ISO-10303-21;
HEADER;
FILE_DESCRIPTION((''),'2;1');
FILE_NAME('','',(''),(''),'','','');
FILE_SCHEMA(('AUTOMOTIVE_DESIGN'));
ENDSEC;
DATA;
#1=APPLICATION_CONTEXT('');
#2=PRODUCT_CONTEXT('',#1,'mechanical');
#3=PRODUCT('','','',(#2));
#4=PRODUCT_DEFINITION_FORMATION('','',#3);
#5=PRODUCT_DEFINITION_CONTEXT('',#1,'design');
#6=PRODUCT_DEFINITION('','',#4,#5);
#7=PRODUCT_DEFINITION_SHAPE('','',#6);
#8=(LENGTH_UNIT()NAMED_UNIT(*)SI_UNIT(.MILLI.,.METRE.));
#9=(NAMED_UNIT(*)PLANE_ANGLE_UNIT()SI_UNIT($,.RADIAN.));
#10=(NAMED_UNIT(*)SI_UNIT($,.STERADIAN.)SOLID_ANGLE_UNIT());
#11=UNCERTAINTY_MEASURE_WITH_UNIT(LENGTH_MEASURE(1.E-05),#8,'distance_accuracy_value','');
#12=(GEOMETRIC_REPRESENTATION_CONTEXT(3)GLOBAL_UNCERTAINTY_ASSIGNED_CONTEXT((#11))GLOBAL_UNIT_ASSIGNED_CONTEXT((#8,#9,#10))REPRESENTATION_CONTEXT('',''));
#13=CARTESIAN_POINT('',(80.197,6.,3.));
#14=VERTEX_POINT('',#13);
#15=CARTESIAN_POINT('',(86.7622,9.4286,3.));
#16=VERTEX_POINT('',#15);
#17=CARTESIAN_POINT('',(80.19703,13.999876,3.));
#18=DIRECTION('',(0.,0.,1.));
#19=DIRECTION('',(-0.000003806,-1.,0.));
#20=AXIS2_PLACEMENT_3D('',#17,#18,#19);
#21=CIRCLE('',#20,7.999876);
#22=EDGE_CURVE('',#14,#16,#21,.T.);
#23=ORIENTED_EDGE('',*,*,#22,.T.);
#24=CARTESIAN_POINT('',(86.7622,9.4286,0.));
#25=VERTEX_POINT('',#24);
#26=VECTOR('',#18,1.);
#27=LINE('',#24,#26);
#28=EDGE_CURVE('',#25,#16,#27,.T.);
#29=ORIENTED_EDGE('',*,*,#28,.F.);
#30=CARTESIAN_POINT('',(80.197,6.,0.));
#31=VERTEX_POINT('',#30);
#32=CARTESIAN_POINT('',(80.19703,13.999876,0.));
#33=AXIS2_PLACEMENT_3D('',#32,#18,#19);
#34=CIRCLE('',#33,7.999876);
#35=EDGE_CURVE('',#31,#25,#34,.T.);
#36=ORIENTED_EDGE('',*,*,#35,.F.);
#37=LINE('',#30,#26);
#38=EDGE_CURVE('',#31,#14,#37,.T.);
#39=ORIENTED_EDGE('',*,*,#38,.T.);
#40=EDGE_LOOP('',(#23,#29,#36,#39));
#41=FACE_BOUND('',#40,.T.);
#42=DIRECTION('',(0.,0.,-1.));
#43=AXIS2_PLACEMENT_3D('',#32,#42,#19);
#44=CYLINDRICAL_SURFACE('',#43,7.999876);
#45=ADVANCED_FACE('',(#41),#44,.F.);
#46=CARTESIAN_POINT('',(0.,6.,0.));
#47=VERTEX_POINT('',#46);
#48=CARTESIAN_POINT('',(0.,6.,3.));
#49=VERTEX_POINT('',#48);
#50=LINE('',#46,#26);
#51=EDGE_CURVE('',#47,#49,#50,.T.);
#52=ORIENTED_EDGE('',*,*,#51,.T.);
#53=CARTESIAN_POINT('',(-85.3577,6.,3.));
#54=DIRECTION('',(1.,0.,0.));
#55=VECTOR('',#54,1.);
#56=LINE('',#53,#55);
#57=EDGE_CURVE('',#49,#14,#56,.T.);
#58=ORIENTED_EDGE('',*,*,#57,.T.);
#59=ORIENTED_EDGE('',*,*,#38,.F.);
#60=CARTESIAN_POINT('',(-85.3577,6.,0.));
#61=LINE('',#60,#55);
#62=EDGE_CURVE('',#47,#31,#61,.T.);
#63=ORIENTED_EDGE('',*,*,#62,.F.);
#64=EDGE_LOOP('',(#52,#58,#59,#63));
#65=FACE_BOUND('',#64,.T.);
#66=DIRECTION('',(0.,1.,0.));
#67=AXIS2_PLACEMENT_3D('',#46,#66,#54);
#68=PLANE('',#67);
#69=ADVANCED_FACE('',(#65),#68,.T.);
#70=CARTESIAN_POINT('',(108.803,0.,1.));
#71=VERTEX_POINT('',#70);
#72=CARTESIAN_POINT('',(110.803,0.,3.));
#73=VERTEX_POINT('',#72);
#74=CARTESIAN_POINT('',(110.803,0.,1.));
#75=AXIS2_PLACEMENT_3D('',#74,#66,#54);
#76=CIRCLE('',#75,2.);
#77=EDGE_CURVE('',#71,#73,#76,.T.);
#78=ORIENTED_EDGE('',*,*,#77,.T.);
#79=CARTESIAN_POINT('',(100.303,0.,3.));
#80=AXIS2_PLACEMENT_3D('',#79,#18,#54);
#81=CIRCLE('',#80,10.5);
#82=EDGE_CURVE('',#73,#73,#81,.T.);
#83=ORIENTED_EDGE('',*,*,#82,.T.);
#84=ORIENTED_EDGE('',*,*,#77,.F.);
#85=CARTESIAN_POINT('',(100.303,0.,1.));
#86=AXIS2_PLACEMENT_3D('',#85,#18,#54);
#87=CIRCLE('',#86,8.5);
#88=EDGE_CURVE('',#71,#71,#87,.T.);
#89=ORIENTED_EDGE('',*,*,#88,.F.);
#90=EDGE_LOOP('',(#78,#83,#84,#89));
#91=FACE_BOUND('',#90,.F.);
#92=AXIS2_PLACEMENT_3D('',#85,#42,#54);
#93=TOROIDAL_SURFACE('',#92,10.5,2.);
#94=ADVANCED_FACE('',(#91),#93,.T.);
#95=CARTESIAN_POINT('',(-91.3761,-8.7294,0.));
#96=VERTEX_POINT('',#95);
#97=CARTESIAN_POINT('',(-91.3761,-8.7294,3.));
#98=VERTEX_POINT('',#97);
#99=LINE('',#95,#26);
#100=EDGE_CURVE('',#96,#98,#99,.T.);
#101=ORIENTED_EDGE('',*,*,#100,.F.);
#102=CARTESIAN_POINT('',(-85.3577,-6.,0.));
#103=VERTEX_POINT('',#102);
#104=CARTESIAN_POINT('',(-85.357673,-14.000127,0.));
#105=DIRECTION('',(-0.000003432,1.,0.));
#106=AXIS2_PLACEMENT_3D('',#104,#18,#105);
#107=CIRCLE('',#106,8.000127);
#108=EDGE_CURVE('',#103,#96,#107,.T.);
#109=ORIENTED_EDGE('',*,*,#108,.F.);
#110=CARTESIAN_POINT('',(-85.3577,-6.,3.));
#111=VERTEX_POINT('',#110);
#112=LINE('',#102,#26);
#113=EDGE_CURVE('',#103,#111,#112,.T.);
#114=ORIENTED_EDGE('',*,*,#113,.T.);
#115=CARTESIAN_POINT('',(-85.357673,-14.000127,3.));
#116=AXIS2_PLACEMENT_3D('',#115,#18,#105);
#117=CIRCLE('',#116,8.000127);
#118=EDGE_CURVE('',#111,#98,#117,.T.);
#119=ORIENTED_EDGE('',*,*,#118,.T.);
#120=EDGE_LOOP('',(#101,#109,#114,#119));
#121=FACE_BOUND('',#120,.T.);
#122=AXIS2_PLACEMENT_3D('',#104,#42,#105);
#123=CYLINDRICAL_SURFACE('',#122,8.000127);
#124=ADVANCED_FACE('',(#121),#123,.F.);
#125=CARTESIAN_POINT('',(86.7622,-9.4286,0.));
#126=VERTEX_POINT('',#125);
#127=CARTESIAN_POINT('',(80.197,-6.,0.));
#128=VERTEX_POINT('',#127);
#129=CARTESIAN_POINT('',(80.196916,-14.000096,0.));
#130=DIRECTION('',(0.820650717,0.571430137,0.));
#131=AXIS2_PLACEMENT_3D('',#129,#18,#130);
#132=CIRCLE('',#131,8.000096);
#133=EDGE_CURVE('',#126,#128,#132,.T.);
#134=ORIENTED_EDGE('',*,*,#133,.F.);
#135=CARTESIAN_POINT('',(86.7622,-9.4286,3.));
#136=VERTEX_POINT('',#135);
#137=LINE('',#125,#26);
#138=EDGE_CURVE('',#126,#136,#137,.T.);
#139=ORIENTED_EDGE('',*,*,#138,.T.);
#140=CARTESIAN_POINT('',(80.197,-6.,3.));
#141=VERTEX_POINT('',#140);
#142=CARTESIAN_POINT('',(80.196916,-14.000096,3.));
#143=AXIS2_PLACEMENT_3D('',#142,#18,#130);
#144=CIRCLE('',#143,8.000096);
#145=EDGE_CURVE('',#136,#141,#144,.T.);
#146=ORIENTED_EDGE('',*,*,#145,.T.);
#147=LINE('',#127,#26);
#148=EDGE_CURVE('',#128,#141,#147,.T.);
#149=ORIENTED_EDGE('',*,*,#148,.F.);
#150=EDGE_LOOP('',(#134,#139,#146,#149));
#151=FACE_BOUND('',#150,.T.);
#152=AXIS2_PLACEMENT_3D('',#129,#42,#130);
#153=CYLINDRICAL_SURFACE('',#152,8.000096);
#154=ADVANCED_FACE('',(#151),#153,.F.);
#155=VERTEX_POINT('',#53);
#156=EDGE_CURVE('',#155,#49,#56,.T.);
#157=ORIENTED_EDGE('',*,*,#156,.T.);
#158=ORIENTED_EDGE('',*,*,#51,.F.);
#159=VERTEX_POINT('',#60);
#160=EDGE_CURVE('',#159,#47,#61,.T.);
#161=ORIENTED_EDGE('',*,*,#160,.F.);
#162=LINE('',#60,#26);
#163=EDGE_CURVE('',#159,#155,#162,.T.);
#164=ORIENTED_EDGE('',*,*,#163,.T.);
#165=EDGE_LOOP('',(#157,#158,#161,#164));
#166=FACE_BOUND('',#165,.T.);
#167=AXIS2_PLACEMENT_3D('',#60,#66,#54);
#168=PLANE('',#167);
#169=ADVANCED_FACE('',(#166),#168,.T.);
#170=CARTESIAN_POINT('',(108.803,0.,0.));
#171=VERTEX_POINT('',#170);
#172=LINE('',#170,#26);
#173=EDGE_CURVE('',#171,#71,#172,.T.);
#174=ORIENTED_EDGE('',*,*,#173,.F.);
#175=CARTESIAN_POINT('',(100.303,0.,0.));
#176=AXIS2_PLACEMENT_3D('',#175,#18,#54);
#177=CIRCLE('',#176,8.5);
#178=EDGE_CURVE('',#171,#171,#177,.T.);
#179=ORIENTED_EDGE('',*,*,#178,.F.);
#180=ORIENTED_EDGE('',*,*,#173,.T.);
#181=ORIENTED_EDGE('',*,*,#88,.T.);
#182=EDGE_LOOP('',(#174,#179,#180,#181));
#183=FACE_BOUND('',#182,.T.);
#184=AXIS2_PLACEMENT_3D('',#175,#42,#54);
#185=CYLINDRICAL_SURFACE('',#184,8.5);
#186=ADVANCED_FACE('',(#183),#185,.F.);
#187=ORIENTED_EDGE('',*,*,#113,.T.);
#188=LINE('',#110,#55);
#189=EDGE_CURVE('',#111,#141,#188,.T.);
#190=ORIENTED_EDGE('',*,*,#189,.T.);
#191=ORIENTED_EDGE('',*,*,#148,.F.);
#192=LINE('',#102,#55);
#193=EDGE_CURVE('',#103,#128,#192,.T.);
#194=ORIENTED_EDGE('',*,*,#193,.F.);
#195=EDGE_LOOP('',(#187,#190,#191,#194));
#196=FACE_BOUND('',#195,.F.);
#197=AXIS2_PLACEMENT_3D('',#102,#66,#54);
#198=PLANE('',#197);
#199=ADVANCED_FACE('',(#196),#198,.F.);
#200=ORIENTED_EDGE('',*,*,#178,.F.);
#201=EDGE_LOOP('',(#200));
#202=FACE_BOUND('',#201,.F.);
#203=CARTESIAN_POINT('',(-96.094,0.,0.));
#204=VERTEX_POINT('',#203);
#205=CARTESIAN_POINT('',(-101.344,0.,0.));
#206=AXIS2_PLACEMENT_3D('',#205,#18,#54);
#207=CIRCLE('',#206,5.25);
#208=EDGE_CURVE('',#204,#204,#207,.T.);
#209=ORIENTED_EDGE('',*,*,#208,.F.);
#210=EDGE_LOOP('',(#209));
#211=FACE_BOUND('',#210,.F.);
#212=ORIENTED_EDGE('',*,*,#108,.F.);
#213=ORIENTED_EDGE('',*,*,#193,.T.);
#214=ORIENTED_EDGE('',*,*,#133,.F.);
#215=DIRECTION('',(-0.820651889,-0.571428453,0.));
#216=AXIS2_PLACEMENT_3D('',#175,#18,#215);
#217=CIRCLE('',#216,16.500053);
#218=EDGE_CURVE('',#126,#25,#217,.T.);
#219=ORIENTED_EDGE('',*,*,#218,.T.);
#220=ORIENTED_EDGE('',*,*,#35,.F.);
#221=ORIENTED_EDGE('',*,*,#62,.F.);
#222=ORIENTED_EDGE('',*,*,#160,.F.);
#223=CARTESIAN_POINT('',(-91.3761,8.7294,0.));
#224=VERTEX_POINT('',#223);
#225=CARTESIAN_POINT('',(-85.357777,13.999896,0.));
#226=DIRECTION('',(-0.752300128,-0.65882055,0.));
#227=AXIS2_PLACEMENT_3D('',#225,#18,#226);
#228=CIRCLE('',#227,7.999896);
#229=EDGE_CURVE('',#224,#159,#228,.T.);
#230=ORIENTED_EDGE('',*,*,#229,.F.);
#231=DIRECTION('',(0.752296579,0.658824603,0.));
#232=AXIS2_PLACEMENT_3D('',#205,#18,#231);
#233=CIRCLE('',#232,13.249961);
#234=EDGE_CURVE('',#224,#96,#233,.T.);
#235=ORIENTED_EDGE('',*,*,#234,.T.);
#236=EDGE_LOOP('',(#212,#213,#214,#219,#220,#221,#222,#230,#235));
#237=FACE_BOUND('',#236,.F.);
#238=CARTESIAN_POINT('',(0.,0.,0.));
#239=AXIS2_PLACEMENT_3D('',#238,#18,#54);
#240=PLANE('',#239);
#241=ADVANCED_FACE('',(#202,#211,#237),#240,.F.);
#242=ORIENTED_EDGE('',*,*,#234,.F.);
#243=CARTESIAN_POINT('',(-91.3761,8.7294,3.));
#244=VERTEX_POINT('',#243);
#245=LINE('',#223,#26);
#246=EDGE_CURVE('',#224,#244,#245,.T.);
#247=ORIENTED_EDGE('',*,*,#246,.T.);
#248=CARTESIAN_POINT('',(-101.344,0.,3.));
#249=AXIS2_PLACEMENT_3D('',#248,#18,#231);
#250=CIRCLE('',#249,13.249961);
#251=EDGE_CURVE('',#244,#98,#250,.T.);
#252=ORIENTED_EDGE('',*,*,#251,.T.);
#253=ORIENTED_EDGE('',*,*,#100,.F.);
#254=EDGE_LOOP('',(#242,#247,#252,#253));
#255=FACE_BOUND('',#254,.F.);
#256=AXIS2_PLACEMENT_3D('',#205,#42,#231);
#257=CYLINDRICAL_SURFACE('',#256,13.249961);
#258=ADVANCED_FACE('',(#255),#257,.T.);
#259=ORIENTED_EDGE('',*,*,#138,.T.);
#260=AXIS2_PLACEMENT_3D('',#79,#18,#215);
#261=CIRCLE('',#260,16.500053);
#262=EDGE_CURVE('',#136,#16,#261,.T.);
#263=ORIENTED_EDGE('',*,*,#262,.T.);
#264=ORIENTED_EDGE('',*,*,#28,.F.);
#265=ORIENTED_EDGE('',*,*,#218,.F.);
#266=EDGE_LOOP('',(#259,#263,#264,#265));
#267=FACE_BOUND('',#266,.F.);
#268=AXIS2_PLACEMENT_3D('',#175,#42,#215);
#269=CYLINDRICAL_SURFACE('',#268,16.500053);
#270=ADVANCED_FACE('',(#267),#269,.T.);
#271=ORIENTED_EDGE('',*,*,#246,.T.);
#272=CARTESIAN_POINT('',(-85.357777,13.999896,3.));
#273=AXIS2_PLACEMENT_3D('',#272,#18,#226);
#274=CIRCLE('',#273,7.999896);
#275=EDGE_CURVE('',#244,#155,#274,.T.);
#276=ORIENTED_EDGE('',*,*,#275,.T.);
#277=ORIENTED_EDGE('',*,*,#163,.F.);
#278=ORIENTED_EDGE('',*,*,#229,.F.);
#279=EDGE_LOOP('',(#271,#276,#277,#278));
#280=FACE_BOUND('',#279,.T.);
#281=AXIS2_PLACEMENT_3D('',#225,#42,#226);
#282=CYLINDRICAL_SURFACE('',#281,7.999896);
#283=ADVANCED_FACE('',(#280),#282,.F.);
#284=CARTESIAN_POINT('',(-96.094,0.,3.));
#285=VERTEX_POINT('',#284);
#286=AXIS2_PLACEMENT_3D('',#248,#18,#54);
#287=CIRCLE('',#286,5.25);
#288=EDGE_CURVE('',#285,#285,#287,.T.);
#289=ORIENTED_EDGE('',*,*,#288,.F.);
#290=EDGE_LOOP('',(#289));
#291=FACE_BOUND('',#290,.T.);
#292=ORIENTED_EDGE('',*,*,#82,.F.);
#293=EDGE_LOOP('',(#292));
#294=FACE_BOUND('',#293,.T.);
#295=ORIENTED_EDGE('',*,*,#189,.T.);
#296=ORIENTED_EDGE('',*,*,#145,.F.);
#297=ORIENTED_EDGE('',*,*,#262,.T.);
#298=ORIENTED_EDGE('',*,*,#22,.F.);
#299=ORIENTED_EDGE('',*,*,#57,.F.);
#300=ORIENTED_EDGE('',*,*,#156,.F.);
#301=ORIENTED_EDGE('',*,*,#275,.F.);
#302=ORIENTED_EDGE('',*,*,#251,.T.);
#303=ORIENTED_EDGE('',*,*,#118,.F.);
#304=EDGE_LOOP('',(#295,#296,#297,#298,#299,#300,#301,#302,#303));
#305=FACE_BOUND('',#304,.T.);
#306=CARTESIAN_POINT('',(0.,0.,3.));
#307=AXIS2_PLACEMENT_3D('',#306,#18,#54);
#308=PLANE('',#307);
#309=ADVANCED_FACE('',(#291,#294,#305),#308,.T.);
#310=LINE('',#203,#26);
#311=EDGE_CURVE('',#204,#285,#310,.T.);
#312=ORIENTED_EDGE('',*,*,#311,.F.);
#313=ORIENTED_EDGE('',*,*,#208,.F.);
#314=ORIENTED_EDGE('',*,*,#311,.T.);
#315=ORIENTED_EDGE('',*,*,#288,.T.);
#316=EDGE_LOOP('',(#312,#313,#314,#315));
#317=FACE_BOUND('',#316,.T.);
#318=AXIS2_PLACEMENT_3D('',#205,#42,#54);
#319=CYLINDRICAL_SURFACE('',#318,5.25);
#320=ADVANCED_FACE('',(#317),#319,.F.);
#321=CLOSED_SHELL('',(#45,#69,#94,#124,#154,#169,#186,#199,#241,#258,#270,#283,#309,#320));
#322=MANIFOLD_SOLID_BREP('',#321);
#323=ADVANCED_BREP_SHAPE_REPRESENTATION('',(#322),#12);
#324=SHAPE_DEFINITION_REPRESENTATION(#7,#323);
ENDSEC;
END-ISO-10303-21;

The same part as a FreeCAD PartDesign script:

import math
import FreeCAD as App
import Part
import Sketcher
Q = App.Units.Quantity


def edges_at(feature, points):
    """Names of the edges that pass closest to the given points."""
    edges = feature.Shape.Edges
    near = lambda p: min(range(len(edges)), key=lambda i: edges[i].distToShape(Part.Vertex(*p))[0])
    return sorted({f"Edge{near(p) + 1}" for p in points})

doc = App.newDocument("Part")
params = doc.addObject("Spreadsheet::Sheet", "Params")
for row, (alias, value) in enumerate([
    ("sketch1_diameter", "17 mm"),
    ("sketch1_radius", "8 mm"),
    ("sketch1_diameter2", "10.5 mm"),
    ("sketch1_radius2", "16.5 mm"),
    ("sketch1_radius3", "13.25 mm"),
    ("pad1_length", "3 mm"),
    ("fillet_radius", "2 mm"),
], start=1):
    params.set(f"A{row}", alias)
    params.set(f"B{row}", "=" + value)
    params.setAlias(f"B{row}", alias)

body = doc.addObject("PartDesign::Body", "Body")

# Sketch on XY plane
sketch1 = body.newObject("Sketcher::SketchObject", "Sketch")
sketch1.AttachmentSupport = (doc.getObject("XY_Plane"), [""])
sketch1.MapMode = "FlatFace"
sketch1.addGeometry(Part.ArcOfCircle(Part.Circle(App.Vector(-85, 14, 0), App.Vector(0, 0, 1), 8), math.radians(-139), math.radians(-90)), False)
sketch1.addGeometry(Part.ArcOfCircle(Part.Circle(App.Vector(-101, 0, 0), App.Vector(0, 0, 1), 13), math.radians(41), math.radians(319)), False)
sketch1.addGeometry(Part.ArcOfCircle(Part.Circle(App.Vector(-85, -14, 0), App.Vector(0, 0, 1), 8), math.radians(90), math.radians(139)), False)
sketch1.addGeometry(Part.LineSegment(App.Vector(-85, -6, 0), App.Vector(80, -6, 0)), False)
sketch1.addGeometry(Part.ArcOfCircle(Part.Circle(App.Vector(80, -14, 0), App.Vector(0, 0, 1), 8), math.radians(35), math.radians(90)), False)
sketch1.addGeometry(Part.ArcOfCircle(Part.Circle(App.Vector(100, 0, 0), App.Vector(0, 0, 1), 17), math.radians(-145), math.radians(145)), False)
sketch1.addGeometry(Part.ArcOfCircle(Part.Circle(App.Vector(80, 14, 0), App.Vector(0, 0, 1), 8), math.radians(-90), math.radians(-35)), False)
sketch1.addGeometry(Part.LineSegment(App.Vector(80, 6, 0), App.Vector(-85, 6, 0)), False)
sketch1.addGeometry(Part.Circle(App.Vector(-101, 0, 0), App.Vector(0, 0, 1), 5), False)
sketch1.addGeometry(Part.Circle(App.Vector(100, 0, 0), App.Vector(0, 0, 1), 8), False)
sketch1.addConstraint(Sketcher.Constraint("Tangent", 0, 1, 1, 1))
sketch1.addConstraint(Sketcher.Constraint("Tangent", 1, 2, 2, 2))
sketch1.addConstraint(Sketcher.Constraint("Tangent", 2, 1, 3, 1))
sketch1.addConstraint(Sketcher.Constraint("Tangent", 3, 2, 4, 2))
sketch1.addConstraint(Sketcher.Constraint("Tangent", 4, 1, 5, 1))
sketch1.addConstraint(Sketcher.Constraint("Tangent", 5, 2, 6, 2))
sketch1.addConstraint(Sketcher.Constraint("Tangent", 6, 1, 7, 1))
sketch1.addConstraint(Sketcher.Constraint("Tangent", 7, 2, 0, 2))
sketch1.addConstraint(Sketcher.Constraint("Horizontal", 3))
sketch1.addConstraint(Sketcher.Constraint("Horizontal", 7))
sketch1.addConstraint(Sketcher.Constraint("Coincident", 8, 3, 1, 3))
sketch1.addConstraint(Sketcher.Constraint("Coincident", 9, 3, 5, 3))
sketch1.addConstraint(Sketcher.Constraint("Equal", 0, 2))
sketch1.addConstraint(Sketcher.Constraint("Equal", 2, 4))
sketch1.addConstraint(Sketcher.Constraint("Equal", 4, 6))
sketch1.addConstraint(Sketcher.Constraint("Symmetric", 0, 3, 2, 3, -1))
sketch1.addConstraint(Sketcher.Constraint("PointOnObject", 5, 3, -1))
sketch1.addConstraint(Sketcher.Constraint("Diameter", 9, Q("17 mm")))
sketch1.addConstraint(Sketcher.Constraint("Radius", 0, Q("8 mm")))
sketch1.addConstraint(Sketcher.Constraint("Diameter", 8, Q("10.5 mm")))
sketch1.addConstraint(Sketcher.Constraint("DistanceY", 3, 2, 6, 1, Q("12 mm")))
sketch1.addConstraint(Sketcher.Constraint("Radius", 5, Q("16.5 mm")))
sketch1.addConstraint(Sketcher.Constraint("Radius", 1, Q("13.25 mm")))
sketch1.addConstraint(Sketcher.Constraint("DistanceX", 1, 3, 5, 3, Q("201.647 mm")))
sketch1.addConstraint(Sketcher.Constraint("DistanceX", 1, 3, -1, 1, Q("101.344 mm")))
sketch1.setExpression("Constraints[17]", "Params.sketch1_diameter")
sketch1.setExpression("Constraints[18]", "Params.sketch1_radius")
sketch1.setExpression("Constraints[19]", "Params.sketch1_diameter2")
sketch1.setExpression("Constraints[21]", "Params.sketch1_radius2")
sketch1.setExpression("Constraints[22]", "Params.sketch1_radius3")
pad1 = body.newObject("PartDesign::Pad", "Pad")
pad1.Profile = sketch1
pad1.setExpression("Length", "Params.pad1_length")
doc.recompute()

fillet = body.newObject("PartDesign::Fillet", "Fillet")
fillet.Base = (pad1, edges_at(pad1, [(91.803, 0, 3)]))
fillet.setExpression("Radius", "Params.fillet_radius")

doc.recompute()
